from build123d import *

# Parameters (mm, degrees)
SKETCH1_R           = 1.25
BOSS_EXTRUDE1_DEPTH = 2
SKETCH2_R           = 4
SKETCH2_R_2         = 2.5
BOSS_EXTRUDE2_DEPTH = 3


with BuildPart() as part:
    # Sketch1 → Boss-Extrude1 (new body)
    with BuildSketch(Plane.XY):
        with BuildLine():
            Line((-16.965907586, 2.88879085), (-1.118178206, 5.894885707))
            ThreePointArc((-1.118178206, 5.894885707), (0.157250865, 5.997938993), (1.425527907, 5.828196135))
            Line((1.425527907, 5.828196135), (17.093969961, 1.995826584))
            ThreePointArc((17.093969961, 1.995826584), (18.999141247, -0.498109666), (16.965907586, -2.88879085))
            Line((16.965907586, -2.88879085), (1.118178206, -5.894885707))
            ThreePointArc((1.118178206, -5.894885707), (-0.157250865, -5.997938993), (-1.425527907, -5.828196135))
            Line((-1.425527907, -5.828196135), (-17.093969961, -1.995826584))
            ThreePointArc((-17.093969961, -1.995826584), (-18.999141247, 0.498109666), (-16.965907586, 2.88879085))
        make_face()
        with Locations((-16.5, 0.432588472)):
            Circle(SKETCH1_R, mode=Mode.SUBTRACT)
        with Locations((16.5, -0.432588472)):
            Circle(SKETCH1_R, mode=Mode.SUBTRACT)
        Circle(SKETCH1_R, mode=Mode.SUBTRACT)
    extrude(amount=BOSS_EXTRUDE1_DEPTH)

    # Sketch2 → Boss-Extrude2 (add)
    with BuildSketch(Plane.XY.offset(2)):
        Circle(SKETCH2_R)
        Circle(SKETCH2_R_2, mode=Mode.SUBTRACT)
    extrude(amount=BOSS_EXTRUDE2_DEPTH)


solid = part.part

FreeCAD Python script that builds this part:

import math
import FreeCAD as App
import Part
import Sketcher
from FreeCAD import Vector

doc = App.newDocument("Part")
body = doc.addObject("PartDesign::Body", "Body")

# Sketch on XY plane
sketch1 = body.newObject("Sketcher::SketchObject", "Sketch")
sketch1.AttachmentSupport = (doc.getObject("XY_Plane"), [""])
sketch1.MapMode = "FlatFace"
sketch1.addGeometry([
    Part.LineSegment(Vector(-1.1, 5.9, 0), Vector(-17, 2.9, 0)),  # 0
    Part.ArcOfCircle(Part.Circle(Vector(-16.5, 0.4, 0), Vector(0, 0, 1), 2.5), math.radians(101), math.radians(256)),  # 1
    Part.LineSegment(Vector(-17.1, -2, 0), Vector(-1.4, -5.8, 0)),  # 2
    Part.ArcOfCircle(Part.Circle(Vector(0, 0, 0), Vector(0, 0, 1), 6), math.radians(-104), math.radians(-79)),  # 3
    Part.LineSegment(Vector(1.1, -5.9, 0), Vector(17, -2.9, 0)),  # 4
    Part.ArcOfCircle(Part.Circle(Vector(16.5, -0.4, 0), Vector(0, 0, 1), 2.5), math.radians(-79), math.radians(76)),  # 5
    Part.LineSegment(Vector(17.1, 2, 0), Vector(1.4, 5.8, 0)),  # 6
    Part.ArcOfCircle(Part.Circle(Vector(0, 0, 0), Vector(0, 0, 1), 6), math.radians(76), math.radians(101)),  # 7
    Part.Circle(Vector(16.5, -0.4, 0), Vector(0, 0, 1), 1.2),  # 8
    Part.Circle(Vector(0, 0, 0), Vector(0, 0, 1), 1.2),  # 9
    Part.Circle(Vector(-16.5, 0.4, 0), Vector(0, 0, 1), 1.2),  # 10
], False)
sketch1.addConstraint([
    Sketcher.Constraint("Tangent", 0, 2, 1, 1),
    Sketcher.Constraint("Tangent", 1, 2, 2, 1),
    Sketcher.Constraint("Tangent", 2, 2, 3, 1),
    Sketcher.Constraint("Tangent", 3, 2, 4, 1),
    Sketcher.Constraint("Tangent", 4, 2, 5, 1),
    Sketcher.Constraint("Tangent", 5, 2, 6, 1),
    Sketcher.Constraint("Tangent", 6, 2, 7, 1),
    Sketcher.Constraint("Tangent", 7, 2, 0, 1),
    Sketcher.Constraint("Coincident", 3, 3, -1, 1),
    Sketcher.Constraint("Coincident", 7, 3, -1, 1),
    Sketcher.Constraint("Coincident", 9, 3, -1, 1),
    Sketcher.Constraint("Coincident", 8, 3, 5, 3),
    Sketcher.Constraint("Coincident", 10, 3, 1, 3),
    Sketcher.Constraint("Equal", 1, 5),
    Sketcher.Constraint("Equal", 3, 7),
    Sketcher.Constraint("Equal", 8, 9),
    Sketcher.Constraint("Equal", 9, 10),
    Sketcher.Constraint("Symmetric", 1, 3, 5, 3, -1, 1),
    Sketcher.Constraint("Radius", 3, 6.0),
    Sketcher.Constraint("Diameter", 8, 2.5),
    Sketcher.Constraint("Radius", 1, 2.5),
    Sketcher.Constraint("DistanceX", 1, 3, 5, 3, 33.0),
    Sketcher.Constraint("DistanceY", -1, 1, 1, 3, 0.432588),
])
pad1 = body.newObject("PartDesign::Pad", "Pad")
pad1.Profile = sketch1
pad1.Length = 2

# Sketch on XY plane
sketch2 = body.newObject("Sketcher::SketchObject", "Sketch001")
sketch2.AttachmentSupport = (doc.getObject("XY_Plane"), [""])
sketch2.MapMode = "FlatFace"
sketch2.AttachmentOffset = App.Placement(Vector(0, 0, 2), App.Rotation())
sketch2.addGeometry([
    Part.Circle(Vector(0, 0, 0), Vector(0, 0, 1), 4),
    Part.Circle(Vector(0, 0, 0), Vector(0, 0, 1), 2.5),
], False)
sketch2.addConstraint([
    Sketcher.Constraint("Coincident", 0, 3, -1, 1),
    Sketcher.Constraint("Coincident", 1, 3, -1, 1),
    Sketcher.Constraint("Diameter", 0, 8.0),
    Sketcher.Constraint("Diameter", 1, 5.0),
])
pad2 = body.newObject("PartDesign::Pad", "Pad001")
pad2.Profile = sketch2
pad2.Length = 3

doc.recompute()
